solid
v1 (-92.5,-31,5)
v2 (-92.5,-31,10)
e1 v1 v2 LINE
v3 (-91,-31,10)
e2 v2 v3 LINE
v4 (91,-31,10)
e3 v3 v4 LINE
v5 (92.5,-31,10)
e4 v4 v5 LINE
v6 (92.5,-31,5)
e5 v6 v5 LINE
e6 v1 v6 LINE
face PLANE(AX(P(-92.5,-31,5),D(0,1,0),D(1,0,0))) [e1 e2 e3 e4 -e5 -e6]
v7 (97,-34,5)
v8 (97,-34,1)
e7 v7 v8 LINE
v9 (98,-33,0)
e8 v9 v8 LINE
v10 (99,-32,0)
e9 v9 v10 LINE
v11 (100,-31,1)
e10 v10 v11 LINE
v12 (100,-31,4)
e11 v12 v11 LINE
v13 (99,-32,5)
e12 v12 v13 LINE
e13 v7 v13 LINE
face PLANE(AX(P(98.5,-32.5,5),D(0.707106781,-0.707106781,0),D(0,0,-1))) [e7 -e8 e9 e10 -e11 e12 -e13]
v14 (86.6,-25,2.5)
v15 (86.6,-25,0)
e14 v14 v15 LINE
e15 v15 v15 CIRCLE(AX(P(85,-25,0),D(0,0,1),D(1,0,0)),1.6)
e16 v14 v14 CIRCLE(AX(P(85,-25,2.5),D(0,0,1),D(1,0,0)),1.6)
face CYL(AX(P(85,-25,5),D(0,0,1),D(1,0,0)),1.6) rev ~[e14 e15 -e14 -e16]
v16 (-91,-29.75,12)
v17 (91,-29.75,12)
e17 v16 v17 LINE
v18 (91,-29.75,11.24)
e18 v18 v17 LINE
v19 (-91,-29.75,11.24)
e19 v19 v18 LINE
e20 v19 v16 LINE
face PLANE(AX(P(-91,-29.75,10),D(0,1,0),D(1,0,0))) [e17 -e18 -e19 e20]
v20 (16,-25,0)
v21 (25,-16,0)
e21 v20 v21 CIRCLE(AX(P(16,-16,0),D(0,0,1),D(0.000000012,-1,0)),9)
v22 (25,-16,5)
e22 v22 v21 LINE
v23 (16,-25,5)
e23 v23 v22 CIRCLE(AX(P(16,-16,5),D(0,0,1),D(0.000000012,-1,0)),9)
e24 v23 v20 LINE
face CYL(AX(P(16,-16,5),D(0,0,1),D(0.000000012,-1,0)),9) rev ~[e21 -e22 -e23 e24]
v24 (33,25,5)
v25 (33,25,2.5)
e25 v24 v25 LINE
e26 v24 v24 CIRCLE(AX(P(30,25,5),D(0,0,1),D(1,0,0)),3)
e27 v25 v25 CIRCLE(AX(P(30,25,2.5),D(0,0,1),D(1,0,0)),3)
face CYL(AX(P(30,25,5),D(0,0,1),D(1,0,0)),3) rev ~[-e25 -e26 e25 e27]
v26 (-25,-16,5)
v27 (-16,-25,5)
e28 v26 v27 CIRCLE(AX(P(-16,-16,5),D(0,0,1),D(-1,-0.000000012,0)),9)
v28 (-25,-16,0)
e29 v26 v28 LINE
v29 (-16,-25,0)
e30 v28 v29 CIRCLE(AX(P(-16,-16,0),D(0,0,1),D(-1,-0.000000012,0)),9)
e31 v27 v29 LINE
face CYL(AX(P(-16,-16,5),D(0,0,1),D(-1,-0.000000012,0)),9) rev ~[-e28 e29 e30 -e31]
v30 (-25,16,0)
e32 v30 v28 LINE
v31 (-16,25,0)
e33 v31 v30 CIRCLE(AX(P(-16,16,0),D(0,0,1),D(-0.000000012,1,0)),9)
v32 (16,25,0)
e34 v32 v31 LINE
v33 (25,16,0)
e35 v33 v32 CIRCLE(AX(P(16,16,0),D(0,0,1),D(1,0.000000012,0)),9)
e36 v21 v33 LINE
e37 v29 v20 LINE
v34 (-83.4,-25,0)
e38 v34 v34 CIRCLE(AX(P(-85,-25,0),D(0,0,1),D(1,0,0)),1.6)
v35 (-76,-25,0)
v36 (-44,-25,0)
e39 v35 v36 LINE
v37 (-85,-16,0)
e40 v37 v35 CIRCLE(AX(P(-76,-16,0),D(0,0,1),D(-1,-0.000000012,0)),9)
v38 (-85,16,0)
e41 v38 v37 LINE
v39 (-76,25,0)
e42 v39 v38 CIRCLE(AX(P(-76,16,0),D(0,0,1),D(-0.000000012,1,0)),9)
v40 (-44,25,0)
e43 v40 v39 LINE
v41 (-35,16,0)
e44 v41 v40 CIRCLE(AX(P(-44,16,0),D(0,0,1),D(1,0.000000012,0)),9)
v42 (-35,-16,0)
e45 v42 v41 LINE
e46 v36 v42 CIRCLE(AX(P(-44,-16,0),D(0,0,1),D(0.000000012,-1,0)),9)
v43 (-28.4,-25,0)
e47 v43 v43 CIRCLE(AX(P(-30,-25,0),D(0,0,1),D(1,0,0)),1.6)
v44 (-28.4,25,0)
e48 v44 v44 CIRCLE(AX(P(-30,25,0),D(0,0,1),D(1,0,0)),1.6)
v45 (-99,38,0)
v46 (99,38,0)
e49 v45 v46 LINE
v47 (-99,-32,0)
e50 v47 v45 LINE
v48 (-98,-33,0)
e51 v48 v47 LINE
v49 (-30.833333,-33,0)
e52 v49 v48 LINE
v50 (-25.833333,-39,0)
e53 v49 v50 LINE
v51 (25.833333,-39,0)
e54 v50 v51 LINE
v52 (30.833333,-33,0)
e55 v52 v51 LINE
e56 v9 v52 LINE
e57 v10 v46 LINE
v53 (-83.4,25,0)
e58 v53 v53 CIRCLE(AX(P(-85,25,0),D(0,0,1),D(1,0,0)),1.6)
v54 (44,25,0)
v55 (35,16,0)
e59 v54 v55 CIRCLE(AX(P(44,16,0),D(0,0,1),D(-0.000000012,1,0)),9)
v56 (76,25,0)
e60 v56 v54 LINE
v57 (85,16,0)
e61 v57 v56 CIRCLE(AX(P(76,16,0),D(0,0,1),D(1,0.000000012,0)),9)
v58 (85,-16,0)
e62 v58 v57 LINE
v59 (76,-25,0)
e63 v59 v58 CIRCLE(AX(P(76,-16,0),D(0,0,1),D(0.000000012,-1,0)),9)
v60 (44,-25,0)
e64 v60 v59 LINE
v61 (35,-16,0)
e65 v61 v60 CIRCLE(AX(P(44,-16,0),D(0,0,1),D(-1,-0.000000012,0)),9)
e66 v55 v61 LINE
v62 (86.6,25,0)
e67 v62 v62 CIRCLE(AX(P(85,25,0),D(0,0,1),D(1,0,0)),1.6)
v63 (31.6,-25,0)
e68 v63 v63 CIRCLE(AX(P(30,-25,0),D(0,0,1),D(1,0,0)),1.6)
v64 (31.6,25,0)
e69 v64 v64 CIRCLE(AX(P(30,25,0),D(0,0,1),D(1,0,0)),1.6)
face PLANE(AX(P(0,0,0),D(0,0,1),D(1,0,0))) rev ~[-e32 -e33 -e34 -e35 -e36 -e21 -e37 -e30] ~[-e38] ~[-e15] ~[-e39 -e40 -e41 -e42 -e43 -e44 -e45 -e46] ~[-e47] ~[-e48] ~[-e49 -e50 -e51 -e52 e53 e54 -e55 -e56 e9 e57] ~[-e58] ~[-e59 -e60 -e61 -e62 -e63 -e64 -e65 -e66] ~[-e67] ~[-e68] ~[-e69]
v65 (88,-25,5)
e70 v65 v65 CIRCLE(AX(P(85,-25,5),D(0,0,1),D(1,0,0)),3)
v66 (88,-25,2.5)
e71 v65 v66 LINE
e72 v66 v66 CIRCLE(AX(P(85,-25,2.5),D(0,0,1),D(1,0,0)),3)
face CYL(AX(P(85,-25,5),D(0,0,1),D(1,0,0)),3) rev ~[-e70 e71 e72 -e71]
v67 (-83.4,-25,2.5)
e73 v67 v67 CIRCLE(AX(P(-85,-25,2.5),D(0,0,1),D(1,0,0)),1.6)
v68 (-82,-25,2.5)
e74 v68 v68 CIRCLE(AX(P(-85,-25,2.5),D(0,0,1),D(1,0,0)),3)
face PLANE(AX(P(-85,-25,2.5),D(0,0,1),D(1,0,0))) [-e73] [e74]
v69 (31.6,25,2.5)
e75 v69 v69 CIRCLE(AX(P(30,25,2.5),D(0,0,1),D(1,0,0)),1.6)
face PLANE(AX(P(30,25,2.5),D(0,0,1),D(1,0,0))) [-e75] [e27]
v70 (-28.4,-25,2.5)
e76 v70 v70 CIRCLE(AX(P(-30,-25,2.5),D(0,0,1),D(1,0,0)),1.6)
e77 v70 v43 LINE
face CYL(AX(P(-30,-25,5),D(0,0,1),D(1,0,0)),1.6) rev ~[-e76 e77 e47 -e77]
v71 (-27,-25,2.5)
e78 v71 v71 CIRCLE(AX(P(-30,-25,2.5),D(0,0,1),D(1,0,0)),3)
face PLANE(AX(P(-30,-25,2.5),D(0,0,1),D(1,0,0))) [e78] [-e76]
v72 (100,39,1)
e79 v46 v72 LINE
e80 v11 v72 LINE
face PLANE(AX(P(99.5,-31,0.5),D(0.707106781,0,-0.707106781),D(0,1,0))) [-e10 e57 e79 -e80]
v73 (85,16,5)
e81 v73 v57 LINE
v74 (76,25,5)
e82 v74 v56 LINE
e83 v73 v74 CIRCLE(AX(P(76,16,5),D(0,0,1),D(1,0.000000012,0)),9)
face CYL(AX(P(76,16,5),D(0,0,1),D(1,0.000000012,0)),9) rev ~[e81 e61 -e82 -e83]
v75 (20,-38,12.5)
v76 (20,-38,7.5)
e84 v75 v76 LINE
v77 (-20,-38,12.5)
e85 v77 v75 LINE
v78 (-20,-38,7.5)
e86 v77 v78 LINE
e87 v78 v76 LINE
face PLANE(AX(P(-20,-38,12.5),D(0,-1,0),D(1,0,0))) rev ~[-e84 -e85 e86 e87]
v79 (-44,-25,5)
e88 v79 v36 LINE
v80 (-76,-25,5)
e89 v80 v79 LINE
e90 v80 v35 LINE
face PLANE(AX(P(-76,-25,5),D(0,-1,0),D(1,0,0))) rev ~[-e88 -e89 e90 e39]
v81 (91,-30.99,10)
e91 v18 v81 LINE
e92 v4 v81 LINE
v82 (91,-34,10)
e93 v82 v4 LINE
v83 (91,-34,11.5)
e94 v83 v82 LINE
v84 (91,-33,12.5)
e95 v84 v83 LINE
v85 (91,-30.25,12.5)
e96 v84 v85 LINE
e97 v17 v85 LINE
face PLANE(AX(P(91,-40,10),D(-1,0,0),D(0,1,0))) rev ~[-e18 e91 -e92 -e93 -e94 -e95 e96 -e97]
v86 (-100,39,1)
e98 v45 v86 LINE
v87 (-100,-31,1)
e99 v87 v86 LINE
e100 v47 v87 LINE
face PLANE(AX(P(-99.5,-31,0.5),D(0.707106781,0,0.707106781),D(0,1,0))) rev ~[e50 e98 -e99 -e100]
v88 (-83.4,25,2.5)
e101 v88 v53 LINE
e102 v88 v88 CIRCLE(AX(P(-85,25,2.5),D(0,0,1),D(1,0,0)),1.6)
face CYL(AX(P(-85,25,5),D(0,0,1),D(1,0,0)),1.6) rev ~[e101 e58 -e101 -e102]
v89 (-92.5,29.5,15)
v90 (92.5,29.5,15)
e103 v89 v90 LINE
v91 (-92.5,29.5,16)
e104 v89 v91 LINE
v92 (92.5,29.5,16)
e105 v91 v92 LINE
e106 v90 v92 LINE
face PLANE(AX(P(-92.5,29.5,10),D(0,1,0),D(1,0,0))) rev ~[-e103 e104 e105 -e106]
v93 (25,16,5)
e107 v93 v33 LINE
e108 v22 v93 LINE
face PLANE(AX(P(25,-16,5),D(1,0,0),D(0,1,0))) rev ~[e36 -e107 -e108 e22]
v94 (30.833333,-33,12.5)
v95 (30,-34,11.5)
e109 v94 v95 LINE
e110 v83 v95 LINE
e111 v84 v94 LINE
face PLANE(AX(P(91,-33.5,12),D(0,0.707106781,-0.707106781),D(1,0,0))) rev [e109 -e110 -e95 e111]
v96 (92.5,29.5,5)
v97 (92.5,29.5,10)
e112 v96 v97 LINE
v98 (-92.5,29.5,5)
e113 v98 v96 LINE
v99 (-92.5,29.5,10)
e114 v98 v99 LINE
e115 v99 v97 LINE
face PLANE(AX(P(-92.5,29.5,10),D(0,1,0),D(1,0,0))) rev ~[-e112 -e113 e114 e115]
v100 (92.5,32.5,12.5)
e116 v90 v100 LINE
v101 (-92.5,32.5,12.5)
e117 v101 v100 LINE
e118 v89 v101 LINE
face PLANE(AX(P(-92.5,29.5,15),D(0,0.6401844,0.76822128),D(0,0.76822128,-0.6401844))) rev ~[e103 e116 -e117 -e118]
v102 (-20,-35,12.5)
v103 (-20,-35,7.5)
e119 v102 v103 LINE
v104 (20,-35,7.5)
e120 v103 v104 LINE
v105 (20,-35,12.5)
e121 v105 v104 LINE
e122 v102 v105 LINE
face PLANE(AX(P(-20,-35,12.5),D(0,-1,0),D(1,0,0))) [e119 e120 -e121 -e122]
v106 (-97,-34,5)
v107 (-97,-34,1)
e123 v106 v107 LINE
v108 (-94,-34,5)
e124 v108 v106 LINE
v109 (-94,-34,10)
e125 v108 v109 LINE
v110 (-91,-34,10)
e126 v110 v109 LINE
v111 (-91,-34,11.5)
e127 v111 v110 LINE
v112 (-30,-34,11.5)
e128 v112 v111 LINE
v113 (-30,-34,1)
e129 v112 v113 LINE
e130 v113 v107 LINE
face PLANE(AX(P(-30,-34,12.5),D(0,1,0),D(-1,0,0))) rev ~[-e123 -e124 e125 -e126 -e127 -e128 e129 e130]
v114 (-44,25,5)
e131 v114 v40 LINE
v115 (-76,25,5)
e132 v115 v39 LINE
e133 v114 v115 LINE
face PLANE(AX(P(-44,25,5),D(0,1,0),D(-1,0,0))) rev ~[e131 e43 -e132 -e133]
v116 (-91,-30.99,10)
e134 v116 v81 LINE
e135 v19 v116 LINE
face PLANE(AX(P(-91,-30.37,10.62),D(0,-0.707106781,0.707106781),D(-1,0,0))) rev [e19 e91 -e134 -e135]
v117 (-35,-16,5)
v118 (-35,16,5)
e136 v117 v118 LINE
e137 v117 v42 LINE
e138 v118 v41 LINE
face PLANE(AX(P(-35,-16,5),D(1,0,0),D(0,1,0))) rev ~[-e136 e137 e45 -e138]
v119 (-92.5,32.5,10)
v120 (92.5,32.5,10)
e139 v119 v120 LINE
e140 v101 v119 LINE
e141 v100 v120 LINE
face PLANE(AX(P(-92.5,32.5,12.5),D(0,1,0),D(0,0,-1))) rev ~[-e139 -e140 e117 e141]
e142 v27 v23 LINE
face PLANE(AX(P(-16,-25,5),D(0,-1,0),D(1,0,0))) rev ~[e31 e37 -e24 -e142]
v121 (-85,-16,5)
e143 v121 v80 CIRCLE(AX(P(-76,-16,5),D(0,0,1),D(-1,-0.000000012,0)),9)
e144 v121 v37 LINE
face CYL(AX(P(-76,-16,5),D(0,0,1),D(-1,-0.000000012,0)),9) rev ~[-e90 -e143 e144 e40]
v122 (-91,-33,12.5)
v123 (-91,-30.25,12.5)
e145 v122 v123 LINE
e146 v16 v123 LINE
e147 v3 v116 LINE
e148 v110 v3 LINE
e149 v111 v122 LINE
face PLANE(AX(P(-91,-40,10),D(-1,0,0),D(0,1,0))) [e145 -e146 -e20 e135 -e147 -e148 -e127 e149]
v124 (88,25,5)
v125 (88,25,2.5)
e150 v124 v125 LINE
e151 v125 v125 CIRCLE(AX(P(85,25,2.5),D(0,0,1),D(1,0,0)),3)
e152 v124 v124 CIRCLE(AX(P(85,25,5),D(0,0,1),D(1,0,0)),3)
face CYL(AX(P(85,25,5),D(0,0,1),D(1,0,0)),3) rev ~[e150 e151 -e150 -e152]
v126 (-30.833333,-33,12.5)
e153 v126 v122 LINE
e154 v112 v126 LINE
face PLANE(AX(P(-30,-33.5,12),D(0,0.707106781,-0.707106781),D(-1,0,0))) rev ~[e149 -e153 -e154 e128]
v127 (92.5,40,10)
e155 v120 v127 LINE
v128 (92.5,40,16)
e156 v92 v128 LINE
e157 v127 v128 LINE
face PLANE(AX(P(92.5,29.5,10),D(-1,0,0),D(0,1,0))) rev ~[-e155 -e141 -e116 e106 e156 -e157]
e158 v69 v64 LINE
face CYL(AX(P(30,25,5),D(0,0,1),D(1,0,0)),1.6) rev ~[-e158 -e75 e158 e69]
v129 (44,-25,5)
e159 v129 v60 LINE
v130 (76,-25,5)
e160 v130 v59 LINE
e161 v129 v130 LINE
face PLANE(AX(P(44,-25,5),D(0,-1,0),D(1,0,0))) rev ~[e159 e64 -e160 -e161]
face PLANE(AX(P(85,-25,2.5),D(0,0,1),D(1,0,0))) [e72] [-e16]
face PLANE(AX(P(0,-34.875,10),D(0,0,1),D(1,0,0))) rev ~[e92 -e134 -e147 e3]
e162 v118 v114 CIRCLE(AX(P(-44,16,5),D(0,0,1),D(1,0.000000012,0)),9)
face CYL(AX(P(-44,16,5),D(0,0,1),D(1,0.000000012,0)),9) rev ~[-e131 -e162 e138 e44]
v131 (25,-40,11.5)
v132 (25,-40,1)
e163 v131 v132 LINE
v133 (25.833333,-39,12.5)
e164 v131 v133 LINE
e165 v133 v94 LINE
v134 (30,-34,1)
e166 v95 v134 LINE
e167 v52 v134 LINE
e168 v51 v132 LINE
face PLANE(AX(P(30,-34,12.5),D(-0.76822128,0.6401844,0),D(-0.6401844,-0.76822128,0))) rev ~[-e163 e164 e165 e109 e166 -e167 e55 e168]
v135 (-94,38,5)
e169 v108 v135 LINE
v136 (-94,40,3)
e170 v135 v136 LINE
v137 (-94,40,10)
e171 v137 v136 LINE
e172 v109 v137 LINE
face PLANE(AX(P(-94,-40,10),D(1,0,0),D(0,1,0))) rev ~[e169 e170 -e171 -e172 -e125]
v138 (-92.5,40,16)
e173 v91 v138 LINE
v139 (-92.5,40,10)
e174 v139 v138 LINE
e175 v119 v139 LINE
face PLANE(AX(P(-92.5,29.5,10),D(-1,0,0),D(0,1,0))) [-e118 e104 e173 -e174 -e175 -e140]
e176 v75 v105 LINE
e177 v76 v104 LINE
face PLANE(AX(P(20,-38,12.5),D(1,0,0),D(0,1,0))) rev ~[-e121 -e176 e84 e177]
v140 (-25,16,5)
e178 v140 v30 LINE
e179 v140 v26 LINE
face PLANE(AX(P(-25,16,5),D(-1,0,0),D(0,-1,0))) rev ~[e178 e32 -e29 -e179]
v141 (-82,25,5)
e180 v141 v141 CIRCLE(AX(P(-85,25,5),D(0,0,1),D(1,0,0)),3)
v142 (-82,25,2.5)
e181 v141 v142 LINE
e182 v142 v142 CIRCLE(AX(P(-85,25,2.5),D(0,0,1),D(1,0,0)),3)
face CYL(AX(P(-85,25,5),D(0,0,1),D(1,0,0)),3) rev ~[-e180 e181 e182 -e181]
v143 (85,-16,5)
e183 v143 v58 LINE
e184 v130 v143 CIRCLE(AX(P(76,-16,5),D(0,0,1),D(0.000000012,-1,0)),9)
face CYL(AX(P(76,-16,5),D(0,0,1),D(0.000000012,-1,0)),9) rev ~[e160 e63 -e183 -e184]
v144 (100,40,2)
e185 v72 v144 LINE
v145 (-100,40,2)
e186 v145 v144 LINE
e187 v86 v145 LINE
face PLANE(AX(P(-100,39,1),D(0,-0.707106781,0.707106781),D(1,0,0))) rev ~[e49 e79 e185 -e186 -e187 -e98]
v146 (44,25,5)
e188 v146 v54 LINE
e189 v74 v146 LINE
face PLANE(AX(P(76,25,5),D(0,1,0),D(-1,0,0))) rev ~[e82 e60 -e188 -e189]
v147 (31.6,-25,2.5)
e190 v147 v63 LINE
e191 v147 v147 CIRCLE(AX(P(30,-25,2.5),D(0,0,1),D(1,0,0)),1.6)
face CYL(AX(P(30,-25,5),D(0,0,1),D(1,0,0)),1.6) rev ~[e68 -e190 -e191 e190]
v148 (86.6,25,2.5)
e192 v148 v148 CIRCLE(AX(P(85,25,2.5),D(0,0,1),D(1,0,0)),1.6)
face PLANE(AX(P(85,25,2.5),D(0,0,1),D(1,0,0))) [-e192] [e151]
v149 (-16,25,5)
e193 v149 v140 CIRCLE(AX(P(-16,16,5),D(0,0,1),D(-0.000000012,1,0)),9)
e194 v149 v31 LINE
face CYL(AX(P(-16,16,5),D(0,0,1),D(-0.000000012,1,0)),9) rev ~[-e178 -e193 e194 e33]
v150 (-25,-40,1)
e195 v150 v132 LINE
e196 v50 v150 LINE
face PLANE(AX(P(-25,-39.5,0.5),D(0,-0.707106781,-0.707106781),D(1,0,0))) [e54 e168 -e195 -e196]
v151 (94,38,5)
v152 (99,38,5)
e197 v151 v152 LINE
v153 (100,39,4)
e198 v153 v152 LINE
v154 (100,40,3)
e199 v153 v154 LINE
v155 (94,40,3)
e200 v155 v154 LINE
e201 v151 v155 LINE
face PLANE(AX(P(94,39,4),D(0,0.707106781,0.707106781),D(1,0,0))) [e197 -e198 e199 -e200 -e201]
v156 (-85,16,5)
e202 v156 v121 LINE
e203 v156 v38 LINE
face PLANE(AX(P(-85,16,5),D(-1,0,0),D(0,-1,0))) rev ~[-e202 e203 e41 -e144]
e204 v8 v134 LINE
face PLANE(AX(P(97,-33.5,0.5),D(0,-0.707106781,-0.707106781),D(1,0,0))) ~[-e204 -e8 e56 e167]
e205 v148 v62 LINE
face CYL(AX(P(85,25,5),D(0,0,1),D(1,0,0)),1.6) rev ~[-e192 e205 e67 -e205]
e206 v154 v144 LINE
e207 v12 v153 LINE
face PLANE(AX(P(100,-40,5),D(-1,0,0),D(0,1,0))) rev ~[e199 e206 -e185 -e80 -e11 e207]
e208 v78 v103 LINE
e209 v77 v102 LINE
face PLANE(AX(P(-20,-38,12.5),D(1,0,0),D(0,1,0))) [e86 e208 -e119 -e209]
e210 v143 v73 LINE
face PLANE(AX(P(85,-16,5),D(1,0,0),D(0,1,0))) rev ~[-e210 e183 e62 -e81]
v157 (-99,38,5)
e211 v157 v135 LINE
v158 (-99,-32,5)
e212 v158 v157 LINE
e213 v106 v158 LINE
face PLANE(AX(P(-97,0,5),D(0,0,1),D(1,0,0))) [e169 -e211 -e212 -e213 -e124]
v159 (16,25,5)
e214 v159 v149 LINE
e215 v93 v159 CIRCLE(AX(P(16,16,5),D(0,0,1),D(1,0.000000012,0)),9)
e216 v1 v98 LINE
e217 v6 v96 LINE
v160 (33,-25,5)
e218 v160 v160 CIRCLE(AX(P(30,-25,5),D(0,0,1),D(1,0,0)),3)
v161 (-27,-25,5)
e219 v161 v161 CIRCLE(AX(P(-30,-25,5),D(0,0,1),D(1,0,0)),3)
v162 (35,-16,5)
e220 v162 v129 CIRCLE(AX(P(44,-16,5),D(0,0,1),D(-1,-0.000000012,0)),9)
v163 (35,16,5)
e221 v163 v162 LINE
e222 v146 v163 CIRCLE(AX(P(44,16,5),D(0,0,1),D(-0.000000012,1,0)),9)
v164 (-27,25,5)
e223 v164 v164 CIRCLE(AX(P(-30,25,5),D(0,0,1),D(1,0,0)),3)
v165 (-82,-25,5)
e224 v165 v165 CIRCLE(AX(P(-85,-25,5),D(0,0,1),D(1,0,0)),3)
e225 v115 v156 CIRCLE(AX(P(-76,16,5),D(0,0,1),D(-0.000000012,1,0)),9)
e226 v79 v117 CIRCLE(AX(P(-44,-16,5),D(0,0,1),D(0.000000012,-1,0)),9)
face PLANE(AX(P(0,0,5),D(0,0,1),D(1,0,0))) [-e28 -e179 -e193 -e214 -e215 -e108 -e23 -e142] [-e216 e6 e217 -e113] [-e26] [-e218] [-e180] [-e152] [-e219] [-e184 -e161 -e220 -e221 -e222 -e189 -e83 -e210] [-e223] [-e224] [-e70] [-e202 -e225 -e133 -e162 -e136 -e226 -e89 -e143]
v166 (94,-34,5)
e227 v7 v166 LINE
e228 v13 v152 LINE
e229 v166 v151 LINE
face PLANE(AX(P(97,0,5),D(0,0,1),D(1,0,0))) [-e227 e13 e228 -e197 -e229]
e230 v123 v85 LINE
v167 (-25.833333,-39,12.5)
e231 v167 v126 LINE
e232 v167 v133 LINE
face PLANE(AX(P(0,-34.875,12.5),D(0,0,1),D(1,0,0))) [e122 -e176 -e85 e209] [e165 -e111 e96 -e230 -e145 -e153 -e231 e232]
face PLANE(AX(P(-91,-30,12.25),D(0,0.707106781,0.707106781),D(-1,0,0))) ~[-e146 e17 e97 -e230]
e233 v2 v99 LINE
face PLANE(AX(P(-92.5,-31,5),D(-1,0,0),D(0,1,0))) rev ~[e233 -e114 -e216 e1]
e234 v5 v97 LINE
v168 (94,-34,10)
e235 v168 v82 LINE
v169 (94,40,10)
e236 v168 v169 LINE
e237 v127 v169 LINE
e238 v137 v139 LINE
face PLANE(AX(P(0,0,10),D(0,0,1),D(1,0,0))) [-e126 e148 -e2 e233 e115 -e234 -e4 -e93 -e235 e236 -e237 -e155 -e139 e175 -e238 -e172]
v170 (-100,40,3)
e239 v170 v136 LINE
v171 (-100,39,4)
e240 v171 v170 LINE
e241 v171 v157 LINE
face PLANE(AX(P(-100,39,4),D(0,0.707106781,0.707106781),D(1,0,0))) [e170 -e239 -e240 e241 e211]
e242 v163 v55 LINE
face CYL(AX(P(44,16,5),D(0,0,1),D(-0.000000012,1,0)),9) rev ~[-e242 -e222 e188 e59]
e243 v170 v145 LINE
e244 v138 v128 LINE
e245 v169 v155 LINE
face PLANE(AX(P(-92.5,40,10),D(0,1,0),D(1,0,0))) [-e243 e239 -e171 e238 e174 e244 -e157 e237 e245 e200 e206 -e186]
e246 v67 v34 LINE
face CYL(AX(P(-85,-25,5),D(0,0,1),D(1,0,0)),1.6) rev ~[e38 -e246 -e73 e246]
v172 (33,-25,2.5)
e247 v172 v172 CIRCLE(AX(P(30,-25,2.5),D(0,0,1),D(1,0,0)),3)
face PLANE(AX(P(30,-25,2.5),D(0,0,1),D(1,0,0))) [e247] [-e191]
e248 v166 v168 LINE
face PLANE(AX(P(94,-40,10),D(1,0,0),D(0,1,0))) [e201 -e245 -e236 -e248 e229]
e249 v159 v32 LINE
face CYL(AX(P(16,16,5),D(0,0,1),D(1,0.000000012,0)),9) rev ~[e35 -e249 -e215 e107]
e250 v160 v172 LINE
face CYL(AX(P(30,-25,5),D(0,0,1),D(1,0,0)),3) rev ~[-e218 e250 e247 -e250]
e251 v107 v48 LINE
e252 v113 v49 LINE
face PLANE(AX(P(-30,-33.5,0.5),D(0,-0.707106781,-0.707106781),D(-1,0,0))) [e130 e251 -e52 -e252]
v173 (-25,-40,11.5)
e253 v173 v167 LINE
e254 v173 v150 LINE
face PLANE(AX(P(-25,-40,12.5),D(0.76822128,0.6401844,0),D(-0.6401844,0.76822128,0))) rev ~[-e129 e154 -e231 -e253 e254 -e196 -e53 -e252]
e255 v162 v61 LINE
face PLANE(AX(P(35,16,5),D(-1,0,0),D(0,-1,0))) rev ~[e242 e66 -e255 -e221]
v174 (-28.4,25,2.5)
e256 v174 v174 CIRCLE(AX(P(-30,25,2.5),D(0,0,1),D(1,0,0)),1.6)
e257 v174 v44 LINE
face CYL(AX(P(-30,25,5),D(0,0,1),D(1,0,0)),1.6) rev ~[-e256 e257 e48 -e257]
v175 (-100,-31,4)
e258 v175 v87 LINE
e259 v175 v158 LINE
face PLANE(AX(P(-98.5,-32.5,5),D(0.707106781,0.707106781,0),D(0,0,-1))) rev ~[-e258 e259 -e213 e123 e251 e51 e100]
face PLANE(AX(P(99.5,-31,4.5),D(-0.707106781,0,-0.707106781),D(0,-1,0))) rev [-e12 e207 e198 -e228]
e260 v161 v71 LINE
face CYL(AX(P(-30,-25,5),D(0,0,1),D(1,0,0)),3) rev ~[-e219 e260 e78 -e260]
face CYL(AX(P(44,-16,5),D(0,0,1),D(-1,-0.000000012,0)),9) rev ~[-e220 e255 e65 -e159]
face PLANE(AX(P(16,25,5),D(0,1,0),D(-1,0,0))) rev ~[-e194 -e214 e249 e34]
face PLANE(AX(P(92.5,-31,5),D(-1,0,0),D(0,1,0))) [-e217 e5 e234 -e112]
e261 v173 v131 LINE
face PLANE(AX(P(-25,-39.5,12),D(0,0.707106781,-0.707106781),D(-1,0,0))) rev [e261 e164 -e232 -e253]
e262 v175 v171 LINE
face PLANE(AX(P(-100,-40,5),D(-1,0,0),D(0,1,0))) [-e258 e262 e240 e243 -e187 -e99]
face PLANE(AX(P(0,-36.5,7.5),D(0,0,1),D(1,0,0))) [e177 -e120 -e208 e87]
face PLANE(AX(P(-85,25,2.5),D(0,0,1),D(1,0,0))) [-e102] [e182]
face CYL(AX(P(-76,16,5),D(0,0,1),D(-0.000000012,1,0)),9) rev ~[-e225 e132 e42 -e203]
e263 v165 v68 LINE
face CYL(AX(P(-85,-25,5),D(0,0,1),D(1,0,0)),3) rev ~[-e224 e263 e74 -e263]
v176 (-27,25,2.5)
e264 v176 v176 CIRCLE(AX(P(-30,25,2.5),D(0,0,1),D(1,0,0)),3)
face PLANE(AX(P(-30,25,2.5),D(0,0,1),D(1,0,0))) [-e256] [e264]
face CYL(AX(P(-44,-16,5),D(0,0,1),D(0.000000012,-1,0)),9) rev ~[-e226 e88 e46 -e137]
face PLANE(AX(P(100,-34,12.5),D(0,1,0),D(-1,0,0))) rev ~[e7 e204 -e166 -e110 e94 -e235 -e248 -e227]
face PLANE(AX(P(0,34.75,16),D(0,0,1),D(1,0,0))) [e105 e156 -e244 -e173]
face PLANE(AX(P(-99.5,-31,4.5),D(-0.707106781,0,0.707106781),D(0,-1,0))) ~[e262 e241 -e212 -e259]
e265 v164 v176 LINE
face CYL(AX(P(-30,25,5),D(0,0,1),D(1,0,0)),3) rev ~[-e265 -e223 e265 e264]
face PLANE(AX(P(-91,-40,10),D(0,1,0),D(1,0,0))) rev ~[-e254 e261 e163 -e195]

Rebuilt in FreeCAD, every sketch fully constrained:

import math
import FreeCAD as App
import Part
import Sketcher
from FreeCAD import Vector


def edges_at(feature, points):
    """Names of the edges that pass closest to the given points."""
    edges = feature.Shape.Edges
    near = lambda p: min(range(len(edges)), key=lambda i: edges[i].distToShape(Part.Vertex(*p))[0])
    return sorted({f"Edge{near(p) + 1}" for p in points})

doc = App.newDocument("Part")
body = doc.addObject("PartDesign::Body", "Body")

sketch1 = body.newObject("Sketcher::SketchObject", "Sketch")
sketch1.AttachmentSupport = (doc.getObject("XY_Plane"), [""])
sketch1.MapMode = "FlatFace"
sketch1.addGeometry([
    Part.LineSegment(Vector(-100, 40, 0), Vector(-100, -40, 0)),
    Part.LineSegment(Vector(-100, -40, 0), Vector(100, -40, 0)),
    Part.LineSegment(Vector(100, -40, 0), Vector(100, 40, 0)),
    Part.LineSegment(Vector(100, 40, 0), Vector(-100, 40, 0)),
], False)
sketch1.addConstraint([
    Sketcher.Constraint("Coincident", 0, 2, 1, 1),
    Sketcher.Constraint("Coincident", 1, 2, 2, 1),
    Sketcher.Constraint("Coincident", 2, 2, 3, 1),
    Sketcher.Constraint("Coincident", 3, 2, 0, 1),
    Sketcher.Constraint("Vertical", 0),
    Sketcher.Constraint("Horizontal", 1),
    Sketcher.Constraint("Vertical", 2),
    Sketcher.Constraint("Horizontal", 3),
    Sketcher.Constraint("Symmetric", 0, 2, 2, 2, -1, 1),
    Sketcher.Constraint("DistanceX", 1, 1, 1, 2, 200.0),
    Sketcher.Constraint("DistanceY", 0, 2, 0, 1, 80.0),
])
pad1 = body.newObject("PartDesign::Pad", "Pad")
pad1.Profile = sketch1
pad1.Length = 5

sketch2 = body.newObject("Sketcher::SketchObject", "Sketch001")
sketch2.AttachmentSupport = (doc.getObject("XY_Plane"), [""])
sketch2.MapMode = "FlatFace"
sketch2.AttachmentOffset = App.Placement(Vector(0, 0, 5), App.Rotation())
sketch2.addGeometry([
    Part.LineSegment(Vector(-100, 40, 0), Vector(-100, -40, 0)),
    Part.LineSegment(Vector(-100, -40, 0), Vector(100, -40, 0)),
    Part.LineSegment(Vector(100, -40, 0), Vector(100, 40, 0)),
    Part.LineSegment(Vector(100, 40, 0), Vector(-100, 40, 0)),
    Part.LineSegment(Vector(92.5, -31, 0), Vector(-92.5, -31, 0)),
    Part.LineSegment(Vector(-92.5, -31, 0), Vector(-92.5, 29.5, 0)),
    Part.LineSegment(Vector(-92.5, 29.5, 0), Vector(92.5, 29.5, 0)),
    Part.LineSegment(Vector(92.5, 29.5, 0), Vector(92.5, -31, 0)),
], False)
sketch2.addConstraint([
    Sketcher.Constraint("Coincident", 0, 2, 1, 1),
    Sketcher.Constraint("Coincident", 1, 2, 2, 1),
    Sketcher.Constraint("Coincident", 2, 2, 3, 1),
    Sketcher.Constraint("Coincident", 3, 2, 0, 1),
    Sketcher.Constraint("Coincident", 4, 2, 5, 1),
    Sketcher.Constraint("Coincident", 5, 2, 6, 1),
    Sketcher.Constraint("Coincident", 6, 2, 7, 1),
    Sketcher.Constraint("Coincident", 7, 2, 4, 1),
    Sketcher.Constraint("Vertical", 0),
    Sketcher.Constraint("Horizontal", 1),
    Sketcher.Constraint("Vertical", 2),
    Sketcher.Constraint("Horizontal", 3),
    Sketcher.Constraint("Horizontal", 4),
    Sketcher.Constraint("Vertical", 5),
    Sketcher.Constraint("Horizontal", 6),
    Sketcher.Constraint("Vertical", 7),
    Sketcher.Constraint("Symmetric", 0, 2, 2, 2, -1, 1),
    Sketcher.Constraint("DistanceX", 1, 1, 1, 2, 200.0),
    Sketcher.Constraint("DistanceX", 4, 2, 4, 1, 185.0),
    Sketcher.Constraint("DistanceY", 0, 2, 0, 1, 80.0),
    Sketcher.Constraint("DistanceY", 5, 1, 5, 2, 60.5),
    Sketcher.Constraint("DistanceY", 4, 2, -1, 1, 31.0),
    Sketcher.Constraint("DistanceX", 4, 2, -1, 1, 92.5),
])
pad2 = body.newObject("PartDesign::Pad", "Pad001")
pad2.Profile = sketch2
pad2.Length = 5

sketch3 = body.newObject("Sketcher::SketchObject", "Sketch002")
sketch3.AttachmentSupport = (doc.getObject("XY_Plane"), [""])
sketch3.MapMode = "FlatFace"
sketch3.AttachmentOffset = App.Placement(Vector(0, 0, 10), App.Rotation())
sketch3.addGeometry([
    Part.LineSegment(Vector(-92.5, 40, 0), Vector(-92.5, 29.5, 0)),
    Part.LineSegment(Vector(-92.5, 29.5, 0), Vector(92.5, 29.5, 0)),
    Part.LineSegment(Vector(92.5, 29.5, 0), Vector(92.5, 40, 0)),
    Part.LineSegment(Vector(92.5, 40, 0), Vector(-92.5, 40, 0)),
], False)
sketch3.addConstraint([
    Sketcher.Constraint("Coincident", 0, 2, 1, 1),
    Sketcher.Constraint("Coincident", 1, 2, 2, 1),
    Sketcher.Constraint("Coincident", 2, 2, 3, 1),
    Sketcher.Constraint("Coincident", 3, 2, 0, 1),
    Sketcher.Constraint("Vertical", 0),
    Sketcher.Constraint("Horizontal", 1),
    Sketcher.Constraint("Vertical", 2),
    Sketcher.Constraint("Horizontal", 3),
    Sketcher.Constraint("DistanceX", 1, 1, 1, 2, 185.0),
    Sketcher.Constraint("DistanceY", 0, 2, 0, 1, 10.5),
    Sketcher.Constraint("DistanceY", -1, 1, 2, 2, 40.0),
    Sketcher.Constraint("DistanceX", 0, 2, -1, 1, 92.5),
])
pad3 = body.newObject("PartDesign::Pad", "Pad002")
pad3.Profile = sketch3
pad3.Length = 6

sketch4 = body.newObject("Sketcher::SketchObject", "Sketch003")
sketch4.AttachmentSupport = (doc.getObject("XY_Plane"), [""])
sketch4.MapMode = "FlatFace"
sketch4.AttachmentOffset = App.Placement(Vector(0, 0, 10), App.Rotation())
sketch4.addGeometry([
    Part.LineSegment(Vector(-91, -29.75, 0), Vector(-91, -40, 0)),
    Part.LineSegment(Vector(-91, -40, 0), Vector(91, -40, 0)),
    Part.LineSegment(Vector(91, -40, 0), Vector(91, -29.75, 0)),
    Part.LineSegment(Vector(91, -29.75, 0), Vector(-91, -29.75, 0)),
], False)
sketch4.addConstraint([
    Sketcher.Constraint("Coincident", 0, 2, 1, 1),
    Sketcher.Constraint("Coincident", 1, 2, 2, 1),
    Sketcher.Constraint("Coincident", 2, 2, 3, 1),
    Sketcher.Constraint("Coincident", 3, 2, 0, 1),
    Sketcher.Constraint("Vertical", 0),
    Sketcher.Constraint("Horizontal", 1),
    Sketcher.Constraint("Vertical", 2),
    Sketcher.Constraint("Horizontal", 3),
    Sketcher.Constraint("DistanceX", 1, 1, 1, 2, 182.0),
    Sketcher.Constraint("DistanceX", 0, 2, -1, 1, 91.0),
    Sketcher.Constraint("DistanceY", 0, 2, -1, 1, 40.0),
    Sketcher.Constraint("DistanceY", 0, 2, 0, 1, 10.25),
])
pad4 = body.newObject("PartDesign::Pad", "Pad003")
pad4.Profile = sketch4
pad4.Length = 2.5

sketch5 = body.newObject("Sketcher::SketchObject", "Sketch004")
sketch5.AttachmentSupport = (doc.getObject("YZ_Plane"), [""])
sketch5.MapMode = "FlatFace"
sketch5.AttachmentOffset = App.Placement(Vector(0, 0, -92.5), App.Rotation())
sketch5.addGeometry([
    Part.LineSegment(Vector(32.5, 12.5, 0), Vector(32.5, 10, 0)),
    Part.LineSegment(Vector(32.5, 10, 0), Vector(29.5, 10, 0)),
    Part.LineSegment(Vector(29.5, 10, 0), Vector(29.5, 15, 0)),
    Part.LineSegment(Vector(29.5, 15, 0), Vector(32.5, 12.5, 0)),
], False)
sketch5.addConstraint([
    Sketcher.Constraint("Coincident", 0, 2, 1, 1),
    Sketcher.Constraint("Coincident", 1, 2, 2, 1),
    Sketcher.Constraint("Coincident", 2, 2, 3, 1),
    Sketcher.Constraint("Coincident", 3, 2, 0, 1),
    Sketcher.Constraint("Vertical", 0),
    Sketcher.Constraint("Horizontal", 1),
    Sketcher.Constraint("Vertical", 2),
    Sketcher.Constraint("DistanceX", 1, 2, 1, 1, 3.0),
    Sketcher.Constraint("DistanceY", 2, 1, 2, 2, 5.0),
    Sketcher.Constraint("DistanceY", 0, 2, 0, 1, 2.5),
    Sketcher.Constraint("DistanceY", -1, 1, 0, 2, 10.0),
    Sketcher.Constraint("DistanceX", -1, 1, 0, 2, 32.5),
])
pocket1 = body.newObject("PartDesign::Pocket", "Pocket")
pocket1.Profile = sketch5
pocket1.Type = "ThroughAll"
pocket1.Reversed = True

sketch6 = body.newObject("Sketcher::SketchObject", "Sketch005")
sketch6.AttachmentSupport = (doc.getObject("XY_Plane"), [""])
sketch6.MapMode = "FlatFace"
sketch6.AttachmentOffset = App.Placement(Vector(0, 0, 5), App.Rotation())
sketch6.addGeometry([
    Part.Circle(Vector(-85, -25, 0), Vector(0, 0, 1), 1.6),
    Part.Circle(Vector(-30, -25, 0), Vector(0, 0, 1), 1.6),
    Part.Circle(Vector(30, -25, 0), Vector(0, 0, 1), 1.6),
    Part.Circle(Vector(85, -25, 0), Vector(0, 0, 1), 1.6),
    Part.Circle(Vector(85, 25, 0), Vector(0, 0, 1), 1.6),
    Part.Circle(Vector(30, 25, 0), Vector(0, 0, 1), 1.6),
    Part.Circle(Vector(-30, 25, 0), Vector(0, 0, 1), 1.6),
    Part.Circle(Vector(-85, 25, 0), Vector(0, 0, 1), 1.6),
    Part.LineSegment(Vector(-25, 16, 0), Vector(-25, -16, 0)),
    Part.ArcOfCircle(Part.Circle(Vector(-16, -16, 0), Vector(0, 0, 1), 9), math.radians(-179.999999), math.radians(-90.000001)),
    Part.LineSegment(Vector(-16, -25, 0), Vector(16, -25, 0)),
    Part.ArcOfCircle(Part.Circle(Vector(16, -16, 0), Vector(0, 0, 1), 9), math.radians(-89.999999), math.radians(-0.000001)),
    Part.LineSegment(Vector(25, -16, 0), Vector(25, 16, 0)),
    Part.ArcOfCircle(Part.Circle(Vector(16, 16, 0), Vector(0, 0, 1), 9), math.radians(0.000001), math.radians(89.999999)),
    Part.LineSegment(Vector(16, 25, 0), Vector(-16, 25, 0)),
    Part.ArcOfCircle(Part.Circle(Vector(-16, 16, 0), Vector(0, 0, 1), 9), math.radians(90.000001), math.radians(179.999999)),
    Part.LineSegment(Vector(-85, 16, 0), Vector(-85, -16, 0)),
    Part.ArcOfCircle(Part.Circle(Vector(-76, -16, 0), Vector(0, 0, 1), 9), math.radians(-179.999999), math.radians(-90.000001)),
    Part.LineSegment(Vector(-76, -25, 0), Vector(-44, -25, 0)),
    Part.ArcOfCircle(Part.Circle(Vector(-44, -16, 0), Vector(0, 0, 1), 9), math.radians(-89.999999), math.radians(-0.000001)),
    Part.LineSegment(Vector(-35, -16, 0), Vector(-35, 16, 0)),
    Part.ArcOfCircle(Part.Circle(Vector(-44, 16, 0), Vector(0, 0, 1), 9), math.radians(0.000001), math.radians(89.999999)),
    Part.LineSegment(Vector(-44, 25, 0), Vector(-76, 25, 0)),
    Part.ArcOfCircle(Part.Circle(Vector(-76, 16, 0), Vector(0, 0, 1), 9), math.radians(90.000001), math.radians(179.999999)),
    Part.LineSegment(Vector(35, 16, 0), Vector(35, -16, 0)),
    Part.ArcOfCircle(Part.Circle(Vector(44, -16, 0), Vector(0, 0, 1), 9), math.radians(-179.999999), math.radians(-90.000001)),
    Part.LineSegment(Vector(44, -25, 0), Vector(76, -25, 0)),
    Part.ArcOfCircle(Part.Circle(Vector(76, -16, 0), Vector(0, 0, 1), 9), math.radians(-89.999999), math.radians(-0.000001)),
    Part.LineSegment(Vector(85, -16, 0), Vector(85, 16, 0)),
    Part.ArcOfCircle(Part.Circle(Vector(76, 16, 0), Vector(0, 0, 1), 9), math.radians(0.000001), math.radians(89.999999)),
    Part.LineSegment(Vector(76, 25, 0), Vector(44, 25, 0)),
    Part.ArcOfCircle(Part.Circle(Vector(44, 16, 0), Vector(0, 0, 1), 9), math.radians(90.000001), math.radians(179.999999)),
], False)
sketch6.addConstraint([
    Sketcher.Constraint("Tangent", 8, 2, 9, 1),
    Sketcher.Constraint("Tangent", 9, 2, 10, 1),
    Sketcher.Constraint("Tangent", 10, 2, 11, 1),
    Sketcher.Constraint("Tangent", 11, 2, 12, 1),
    Sketcher.Constraint("Tangent", 12, 2, 13, 1),
    Sketcher.Constraint("Tangent", 13, 2, 14, 1),
    Sketcher.Constraint("Tangent", 14, 2, 15, 1),
    Sketcher.Constraint("Tangent", 15, 2, 8, 1),
    Sketcher.Constraint("Tangent", 16, 2, 17, 1),
    Sketcher.Constraint("Tangent", 17, 2, 18, 1),
    Sketcher.Constraint("Tangent", 18, 2, 19, 1),
    Sketcher.Constraint("Tangent", 19, 2, 20, 1),
    Sketcher.Constraint("Tangent", 20, 2, 21, 1),
    Sketcher.Constraint("Tangent", 21, 2, 22, 1),
    Sketcher.Constraint("Tangent", 22, 2, 23, 1),
    Sketcher.Constraint("Tangent", 23, 2, 16, 1),
    Sketcher.Constraint("Tangent", 24, 2, 25, 1),
    Sketcher.Constraint("Tangent", 25, 2, 26, 1),
    Sketcher.Constraint("Tangent", 26, 2, 27, 1),
    Sketcher.Constraint("Tangent", 27, 2, 28, 1),
    Sketcher.Constraint("Tangent", 28, 2, 29, 1),
    Sketcher.Constraint("Tangent", 29, 2, 30, 1),
    Sketcher.Constraint("Tangent", 30, 2, 31, 1),
    Sketcher.Constraint("Tangent", 31, 2, 24, 1),
    Sketcher.Constraint("Vertical", 8),
    Sketcher.Constraint("Horizontal", 10),
    Sketcher.Constraint("Vertical", 12),
    Sketcher.Constraint("Horizontal", 14),
    Sketcher.Constraint("Vertical", 16),
    Sketcher.Constraint("Horizontal", 18),
    Sketcher.Constraint("Vertical", 20),
    Sketcher.Constraint("Horizontal", 22),
    Sketcher.Constraint("Vertical", 24),
    Sketcher.Constraint("Horizontal", 26),
    Sketcher.Constraint("Vertical", 28),
    Sketcher.Constraint("Horizontal", 30),
    Sketcher.Constraint("Equal", 0, 1),
    Sketcher.Constraint("Equal", 1, 2),
    Sketcher.Constraint("Equal", 2, 3),
    Sketcher.Constraint("Equal", 3, 4),
    Sketcher.Constraint("Equal", 4, 5),
    Sketcher.Constraint("Equal", 5, 6),
    Sketcher.Constraint("Equal", 6, 7),
    Sketcher.Constraint("Equal", 9, 11),
    Sketcher.Constraint("Equal", 11, 13),
    Sketcher.Constraint("Equal", 13, 15),
    Sketcher.Constraint("Equal", 15, 17),
    Sketcher.Constraint("Equal", 17, 19),
    Sketcher.Constraint("Equal", 19, 21),
    Sketcher.Constraint("Equal", 21, 23),
    Sketcher.Constraint("Equal", 23, 25),
    Sketcher.Constraint("Equal", 25, 27),
    Sketcher.Constraint("Equal", 27, 29),
    Sketcher.Constraint("Equal", 29, 31),
    Sketcher.Constraint("Symmetric", 0, 3, 4, 3, -1, 1),
    Sketcher.Constraint("Symmetric", 1, 3, 5, 3, -1, 1),
    Sketcher.Constraint("Symmetric", 2, 3, 6, 3, -1, 1),
    Sketcher.Constraint("Symmetric", 3, 3, 7, 3, -1, 1),
    Sketcher.Constraint("Symmetric", 9, 3, 13, 3, -1, 1),
    Sketcher.Constraint("Symmetric", 21, 3, 25, 3, -1, 1),
    Sketcher.Constraint("Symmetric", 17, 3, 29, 3, -1, 1),
    Sketcher.Constraint("Symmetric", 1, 3, 2, 3, -2),
    Sketcher.Constraint("Symmetric", 0, 3, 3, 3, -2),
    Sketcher.Constraint("Horizontal", 0, 3, 1, 3),
    Sketcher.Constraint("Horizontal", 11, 3, 17, 3),
    Sketcher.Constraint("Horizontal", 15, 3, 21, 3),
    Sketcher.Constraint("Horizontal", 3, 3, 9, 2),
    Sketcher.Constraint("Vertical", 7, 3, 16, 2),
    Sketcher.Constraint("Equal", 14, 18),
    Sketcher.Constraint("Equal", 30, 8),
    Sketcher.Constraint("Radius", 9, 9.0),
    Sketcher.Constraint("Diameter", 0, 3.2),
    Sketcher.Constraint("DistanceX", 10, 1, 10, 2, 32.0),
    Sketcher.Constraint("DistanceX", 0, 3, -1, 1, 85.0),
    Sketcher.Constraint("DistanceX", 1, 3, -1, 1, 30.0),
])
pocket2 = body.newObject("PartDesign::Pocket", "Pocket001")
pocket2.Profile = sketch6
pocket2.Length = 5

sketch7 = body.newObject("Sketcher::SketchObject", "Sketch006")
sketch7.AttachmentSupport = (doc.getObject("XY_Plane"), [""])
sketch7.MapMode = "FlatFace"
sketch7.AttachmentOffset = App.Placement(Vector(0, 0, 5), App.Rotation())
sketch7.addGeometry([
    Part.Circle(Vector(-85, 25, 0), Vector(0, 0, 1), 3),
    Part.Circle(Vector(-85, -25, 0), Vector(0, 0, 1), 3),
    Part.Circle(Vector(-30, -25, 0), Vector(0, 0, 1), 3),
    Part.Circle(Vector(-30, 25, 0), Vector(0, 0, 1), 3),
    Part.Circle(Vector(30, 25, 0), Vector(0, 0, 1), 3),
    Part.Circle(Vector(30, -25, 0), Vector(0, 0, 1), 3),
    Part.Circle(Vector(85, -25, 0), Vector(0, 0, 1), 3),
    Part.Circle(Vector(85, 25, 0), Vector(0, 0, 1), 3),
], False)
sketch7.addConstraint([
    Sketcher.Constraint("Equal", 0, 1),
    Sketcher.Constraint("Equal", 1, 2),
    Sketcher.Constraint("Equal", 2, 3),
    Sketcher.Constraint("Equal", 3, 4),
    Sketcher.Constraint("Equal", 4, 5),
    Sketcher.Constraint("Equal", 5, 6),
    Sketcher.Constraint("Equal", 6, 7),
    Sketcher.Constraint("Symmetric", 2, 3, 4, 3, -1, 1),
    Sketcher.Constraint("Symmetric", 3, 3, 5, 3, -1, 1),
    Sketcher.Constraint("Symmetric", 0, 3, 6, 3, -1, 1),
    Sketcher.Constraint("Symmetric", 1, 3, 7, 3, -1, 1),
    Sketcher.Constraint("Symmetric", 3, 3, 4, 3, -2),
    Sketcher.Constraint("Symmetric", 1, 3, 6, 3, -2),
    Sketcher.Constraint("Horizontal", 1, 3, 2, 3),
    Sketcher.Constraint("Diameter", 0, 6.0),
    Sketcher.Constraint("DistanceX", 0, 3, -1, 1, 85.0),
    Sketcher.Constraint("DistanceY", -1, 1, 0, 3, 25.0),
    Sketcher.Constraint("DistanceX", 2, 3, -1, 1, 30.0),
])
pocket3 = body.newObject("PartDesign::Pocket", "Pocket002")
pocket3.Profile = sketch7
pocket3.Length = 2.5

sketch8 = body.newObject("Sketcher::SketchObject", "Sketch007")
sketch8.AttachmentSupport = (doc.getObject("XY_Plane"), [""])
sketch8.MapMode = "FlatFace"
sketch8.AttachmentOffset = App.Placement(Vector(0, 0, 10), App.Rotation())
sketch8.addGeometry([
    Part.LineSegment(Vector(-100, 40, 0), Vector(-100, -40, 0)),
    Part.LineSegment(Vector(-100, -40, 0), Vector(-94, -40, 0)),
    Part.LineSegment(Vector(-94, -40, 0), Vector(-94, 40, 0)),
    Part.LineSegment(Vector(-94, 40, 0), Vector(-100, 40, 0)),
    Part.LineSegment(Vector(94, 40, 0), Vector(94, -40, 0)),
    Part.LineSegment(Vector(94, -40, 0), Vector(100, -40, 0)),
    Part.LineSegment(Vector(100, -40, 0), Vector(100, 40, 0)),
    Part.LineSegment(Vector(100, 40, 0), Vector(94, 40, 0)),
], False)
sketch8.addConstraint([
    Sketcher.Constraint("Coincident", 0, 2, 1, 1),
    Sketcher.Constraint("Coincident", 1, 2, 2, 1),
    Sketcher.Constraint("Coincident", 2, 2, 3, 1),
    Sketcher.Constraint("Coincident", 3, 2, 0, 1),
    Sketcher.Constraint("Coincident", 4, 2, 5, 1),
    Sketcher.Constraint("Coincident", 5, 2, 6, 1),
    Sketcher.Constraint("Coincident", 6, 2, 7, 1),
    Sketcher.Constraint("Coincident", 7, 2, 4, 1),
    Sketcher.Constraint("Vertical", 0),
    Sketcher.Constraint("Horizontal", 1),
    Sketcher.Constraint("Vertical", 2),
    Sketcher.Constraint("Horizontal", 3),
    Sketcher.Constraint("Vertical", 4),
    Sketcher.Constraint("Horizontal", 5),
    Sketcher.Constraint("Vertical", 6),
    Sketcher.Constraint("Horizontal", 7),
    Sketcher.Constraint("Symmetric", 2, 2, 4, 2, -1, 1),
    Sketcher.Constraint("Symmetric", 0, 2, 6, 2, -1, 1),
    Sketcher.Constraint("Horizontal", 1, 2, 4, 2),
    Sketcher.Constraint("DistanceX", 1, 1, 1, 2, 6.0),
    Sketcher.Constraint("DistanceY", 0, 2, 0, 1, 80.0),
    Sketcher.Constraint("DistanceX", 0, 2, -1, 1, 100.0),
])
pocket4 = body.newObject("PartDesign::Pocket", "Pocket003")
pocket4.Profile = sketch8
pocket4.Length = 5
doc.recompute()

chamfer = body.newObject("PartDesign::Chamfer", "Chamfer")
chamfer.Base = (pocket4, edges_at(pocket4, [(-97, 40, 5), (0, 40, 0), (97, 40, 5)]))
chamfer.Size = 2

sketch9 = body.newObject("Sketcher::SketchObject", "Sketch008")
sketch9.AttachmentSupport = (doc.getObject("XY_Plane"), [""])
sketch9.MapMode = "FlatFace"
sketch9.AttachmentOffset = App.Placement(Vector(0, 0, 12.5), App.Rotation())
sketch9.addGeometry([
    Part.LineSegment(Vector(-20, -35, 0), Vector(-20, -38, 0)),
    Part.LineSegment(Vector(-20, -38, 0), Vector(20, -38, 0)),
    Part.LineSegment(Vector(20, -38, 0), Vector(20, -35, 0)),
    Part.LineSegment(Vector(20, -35, 0), Vector(-20, -35, 0)),
], False)
sketch9.addConstraint([
    Sketcher.Constraint("Coincident", 0, 2, 1, 1),
    Sketcher.Constraint("Coincident", 1, 2, 2, 1),
    Sketcher.Constraint("Coincident", 2, 2, 3, 1),
    Sketcher.Constraint("Coincident", 3, 2, 0, 1),
    Sketcher.Constraint("Vertical", 0),
    Sketcher.Constraint("Horizontal", 1),
    Sketcher.Constraint("Vertical", 2),
    Sketcher.Constraint("Horizontal", 3),
    Sketcher.Constraint("DistanceX", 1, 1, 1, 2, 40.0),
    Sketcher.Constraint("DistanceY", 0, 2, 0, 1, 3.0),
    Sketcher.Constraint("DistanceX", 0, 2, -1, 1, 20.0),
    Sketcher.Constraint("DistanceY", 0, 2, -1, 1, 38.0),
])
pocket5 = body.newObject("PartDesign::Pocket", "Pocket004")
pocket5.Profile = sketch9
pocket5.Length = 5

sketch10 = body.newObject("Sketcher::SketchObject", "Sketch009")
sketch10.AttachmentSupport = (doc.getObject("XY_Plane"), [""])
sketch10.MapMode = "FlatFace"
sketch10.AttachmentOffset = App.Placement(Vector(0, 0, 12.5), App.Rotation())
sketch10.addGeometry([
    Part.LineSegment(Vector(-100, -34, 0), Vector(-100, -40, 0)),
    Part.LineSegment(Vector(-100, -40, 0), Vector(-25, -40, 0)),
    Part.LineSegment(Vector(-25, -40, 0), Vector(-30, -34, 0)),
    Part.LineSegment(Vector(-30, -34, 0), Vector(-100, -34, 0)),
    Part.LineSegment(Vector(30, -34, 0), Vector(25, -40, 0)),
    Part.LineSegment(Vector(25, -40, 0), Vector(100, -40, 0)),
    Part.LineSegment(Vector(100, -40, 0), Vector(100, -34, 0)),
    Part.LineSegment(Vector(100, -34, 0), Vector(30, -34, 0)),
], False)
sketch10.addConstraint([
    Sketcher.Constraint("Coincident", 0, 2, 1, 1),
    Sketcher.Constraint("Coincident", 1, 2, 2, 1),
    Sketcher.Constraint("Coincident", 2, 2, 3, 1),
    Sketcher.Constraint("Coincident", 3, 2, 0, 1),
    Sketcher.Constraint("Coincident", 4, 2, 5, 1),
    Sketcher.Constraint("Coincident", 5, 2, 6, 1),
    Sketcher.Constraint("Coincident", 6, 2, 7, 1),
    Sketcher.Constraint("Coincident", 7, 2, 4, 1),
    Sketcher.Constraint("Vertical", 0),
    Sketcher.Constraint("Horizontal", 1),
    Sketcher.Constraint("Horizontal", 3),
    Sketcher.Constraint("Horizontal", 5),
    Sketcher.Constraint("Vertical", 6),
    Sketcher.Constraint("Horizontal", 7),
    Sketcher.Constraint("Symmetric", 1, 2, 4, 2, -2),
    Sketcher.Constraint("Symmetric", 3, 2, 6, 2, -2),
    Sketcher.Constraint("Equal", 3, 7),
    Sketcher.Constraint("DistanceX", 1, 1, 1, 2, 75.0),
    Sketcher.Constraint("DistanceX", 3, 2, 3, 1, 70.0),
    Sketcher.Constraint("DistanceY", 0, 2, 0, 1, 6.0),
    Sketcher.Constraint("DistanceX", 0, 2, -1, 1, 100.0),
    Sketcher.Constraint("DistanceY", 0, 2, -1, 1, 40.0),
])
pocket6 = body.newObject("PartDesign::Pocket", "Pocket005")
pocket6.Profile = sketch10
pocket6.Type = "ThroughAll"
doc.recompute()

chamfer2 = body.newObject("PartDesign::Chamfer", "Chamfer001")
chamfer2.Base = (pocket6, edges_at(pocket6, [(-100, -34, 2.5), (100, -34, 2.5)]))
chamfer2.Size = 3
doc.recompute()

chamfer3 = body.newObject("PartDesign::Chamfer", "Chamfer002")
chamfer3.Base = (chamfer2, edges_at(chamfer2, [
    (-60.5, -34, 12.5),
    (-63.5, -34, 0),
    (60.5, -34, 12.5),
    (63.5, -34, 0),
]))
chamfer3.Size = 1
doc.recompute()

chamfer4 = body.newObject("PartDesign::Chamfer", "Chamfer003")
chamfer4.Base = (chamfer3, edges_at(chamfer3, [(0, -40, 12.5), (0, -40, 0)]))
chamfer4.Size = 1
doc.recompute()

chamfer5 = body.newObject("PartDesign::Chamfer", "Chamfer004")
chamfer5.Base = (chamfer4, edges_at(chamfer4, [
    (100, 3.5, 5),
    (100, 3.5, 0),
    (-100, 3.5, 5),
    (-100, 3.5, 0),
]))
chamfer5.Size = 1
doc.recompute()

chamfer6 = body.newObject("PartDesign::Chamfer", "Chamfer005")
chamfer6.Base = (chamfer5, edges_at(chamfer5, [(0, -29.75, 10)]))
chamfer6.Size = 1.24
doc.recompute()

chamfer7 = body.newObject("PartDesign::Chamfer", "Chamfer006")
chamfer7.Base = (chamfer6, edges_at(chamfer6, [(0, -29.75, 12.5)]))
chamfer7.Size = 0.5

doc.recompute()
